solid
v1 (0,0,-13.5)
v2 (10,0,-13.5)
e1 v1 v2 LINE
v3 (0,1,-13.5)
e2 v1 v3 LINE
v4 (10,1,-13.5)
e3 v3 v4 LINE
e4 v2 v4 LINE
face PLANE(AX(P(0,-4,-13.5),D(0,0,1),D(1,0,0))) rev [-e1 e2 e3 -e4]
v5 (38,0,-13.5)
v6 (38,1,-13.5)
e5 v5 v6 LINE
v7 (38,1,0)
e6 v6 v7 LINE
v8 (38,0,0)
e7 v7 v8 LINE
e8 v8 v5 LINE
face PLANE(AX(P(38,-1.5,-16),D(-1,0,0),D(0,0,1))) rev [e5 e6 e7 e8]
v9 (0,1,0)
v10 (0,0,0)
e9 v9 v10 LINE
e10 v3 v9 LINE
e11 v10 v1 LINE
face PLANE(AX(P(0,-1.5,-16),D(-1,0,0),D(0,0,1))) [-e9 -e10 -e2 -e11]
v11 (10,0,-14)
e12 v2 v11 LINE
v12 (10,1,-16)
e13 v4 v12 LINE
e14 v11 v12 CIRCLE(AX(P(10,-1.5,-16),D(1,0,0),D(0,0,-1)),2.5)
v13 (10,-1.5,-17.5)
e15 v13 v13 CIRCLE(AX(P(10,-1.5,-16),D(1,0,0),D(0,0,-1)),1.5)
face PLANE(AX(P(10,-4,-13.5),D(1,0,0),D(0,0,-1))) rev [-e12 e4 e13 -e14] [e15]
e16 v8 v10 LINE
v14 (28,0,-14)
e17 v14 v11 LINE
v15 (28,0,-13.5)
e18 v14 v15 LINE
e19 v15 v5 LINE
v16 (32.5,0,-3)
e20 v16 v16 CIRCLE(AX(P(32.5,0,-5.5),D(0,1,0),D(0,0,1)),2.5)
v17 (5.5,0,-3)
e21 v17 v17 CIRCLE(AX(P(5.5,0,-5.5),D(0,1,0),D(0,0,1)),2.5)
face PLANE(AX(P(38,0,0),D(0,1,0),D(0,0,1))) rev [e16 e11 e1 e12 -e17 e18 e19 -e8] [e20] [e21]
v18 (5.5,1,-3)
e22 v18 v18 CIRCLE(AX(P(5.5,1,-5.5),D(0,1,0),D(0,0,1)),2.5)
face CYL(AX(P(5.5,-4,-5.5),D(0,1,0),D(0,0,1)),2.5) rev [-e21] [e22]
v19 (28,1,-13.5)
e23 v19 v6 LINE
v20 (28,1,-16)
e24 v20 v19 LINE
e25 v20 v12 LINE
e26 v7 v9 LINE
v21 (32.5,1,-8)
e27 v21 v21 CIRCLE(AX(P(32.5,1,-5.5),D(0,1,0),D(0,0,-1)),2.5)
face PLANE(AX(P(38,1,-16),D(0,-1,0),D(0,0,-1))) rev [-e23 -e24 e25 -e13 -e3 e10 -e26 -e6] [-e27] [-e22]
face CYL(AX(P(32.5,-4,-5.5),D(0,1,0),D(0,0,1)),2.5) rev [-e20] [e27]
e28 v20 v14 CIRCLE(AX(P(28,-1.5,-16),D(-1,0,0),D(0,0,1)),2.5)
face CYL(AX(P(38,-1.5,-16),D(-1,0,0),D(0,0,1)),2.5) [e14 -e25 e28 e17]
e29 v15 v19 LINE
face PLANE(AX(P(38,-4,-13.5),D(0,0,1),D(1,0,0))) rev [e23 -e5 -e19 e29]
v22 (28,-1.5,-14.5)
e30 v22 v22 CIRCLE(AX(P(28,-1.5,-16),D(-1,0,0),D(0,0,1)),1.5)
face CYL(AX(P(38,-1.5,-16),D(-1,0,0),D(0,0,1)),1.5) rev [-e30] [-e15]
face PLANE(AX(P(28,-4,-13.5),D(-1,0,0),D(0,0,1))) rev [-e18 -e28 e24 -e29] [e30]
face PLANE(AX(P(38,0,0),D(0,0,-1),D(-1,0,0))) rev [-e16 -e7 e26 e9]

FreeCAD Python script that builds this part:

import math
import FreeCAD as App
import Part
import Sketcher

V = App.Vector
Q = App.Units.Quantity

doc = App.newDocument("Part")
params = doc.addObject("Spreadsheet::Sheet", "Params")
for row, (alias, value) in enumerate([
    ("sketch1_diameter", "3 mm"),
    ("sketch1_radius", "2.5 mm"),
    ("sketch1_width", "1 mm"),
    ("sketch1_height", "16 mm"),
    ("pad1_length", "38 mm"),
    ("sketch2_width", "10 mm"),
    ("sketch2_height", "5 mm"),
    ("sketch3_diameter", "5 mm"),
], start=1):
    params.set(f"A{row}", alias)
    params.set(f"B{row}", "=" + value)
    params.setAlias(f"B{row}", alias)

body = doc.addObject("PartDesign::Body", "Body")

# Sketch on YZ plane
sketch1 = body.newObject("Sketcher::SketchObject", "Sketch")
sketch1.AttachmentSupport = (doc.getObject("YZ_Plane"), [""])
sketch1.MapMode = "FlatFace"
sketch1.addGeometry(Part.LineSegment(V(1, -16, 0), V(1, 0, 0)), False)
sketch1.addGeometry(Part.LineSegment(V(1, 0, 0), V(0, 0, 0)), False)
sketch1.addGeometry(Part.LineSegment(V(0, 0, 0), V(0, -14, 0)), False)
sketch1.addGeometry(Part.ArcOfCircle(Part.Circle(V(-1.5, -16, 0), V(0, 0, 1), 2.5), math.radians(53), math.radians(360)), False)
sketch1.addGeometry(Part.Circle(V(-1.5, -16, 0), V(0, 0, 1), 1.5), False)
sketch1.addConstraint(Sketcher.Constraint("Coincident", 0, 2, 1, 1))
sketch1.addConstraint(Sketcher.Constraint("Coincident", 1, 2, 2, 1))
sketch1.addConstraint(Sketcher.Constraint("Coincident", 2, 2, 3, 1))
sketch1.addConstraint(Sketcher.Constraint("Tangent", 3, 2, 0, 1))
sketch1.addConstraint(Sketcher.Constraint("Vertical", 0))
sketch1.addConstraint(Sketcher.Constraint("Horizontal", 1))
sketch1.addConstraint(Sketcher.Constraint("Vertical", 2))
sketch1.addConstraint(Sketcher.Constraint("Coincident", 1, 2, -1, 1))
sketch1.addConstraint(Sketcher.Constraint("Coincident", 4, 3, 3, 3))
sketch1.addConstraint(Sketcher.Constraint("Diameter", 4, Q("3 mm")))
sketch1.addConstraint(Sketcher.Constraint("Radius", 3, Q("2.5 mm")))
sketch1.addConstraint(Sketcher.Constraint("DistanceX", 1, 2, 1, 1, Q("1 mm")))
sketch1.addConstraint(Sketcher.Constraint("DistanceY", 0, 1, 0, 2, Q("16 mm")))
sketch1.setExpression("Constraints[9]", "Params.sketch1_diameter")
sketch1.setExpression("Constraints[10]", "Params.sketch1_radius")
sketch1.setExpression("Constraints[11]", "Params.sketch1_width")
sketch1.setExpression("Constraints[12]", "Params.sketch1_height")
pad1 = body.newObject("PartDesign::Pad", "Pad")
pad1.Profile = sketch1
pad1.setExpression("Length", "Params.pad1_length")

# Sketch on XZ plane
sketch2 = body.newObject("Sketcher::SketchObject", "Sketch001")
sketch2.AttachmentSupport = (doc.getObject("XZ_Plane"), [""])
sketch2.MapMode = "FlatFace"
sketch2.AttachmentOffset = App.Placement(V(0, 0, -1), App.Rotation())
sketch2.addGeometry(Part.LineSegment(V(28, -18, 0), V(28, -14, 0)), False)
sketch2.addGeometry(Part.LineSegment(V(28, -14, 0), V(38, -14, 0)), False)
sketch2.addGeometry(Part.LineSegment(V(38, -14, 0), V(38, -18, 0)), False)
sketch2.addGeometry(Part.LineSegment(V(38, -18, 0), V(28, -18, 0)), False)
sketch2.addGeometry(Part.LineSegment(V(0, -18, 0), V(0, -14, 0)), False)
sketch2.addGeometry(Part.LineSegment(V(0, -14, 0), V(10, -14, 0)), False)
sketch2.addGeometry(Part.LineSegment(V(10, -14, 0), V(10, -18, 0)), False)
sketch2.addGeometry(Part.LineSegment(V(10, -18, 0), V(0, -18, 0)), False)
sketch2.addConstraint(Sketcher.Constraint("Coincident", 0, 2, 1, 1))
sketch2.addConstraint(Sketcher.Constraint("Coincident", 1, 2, 2, 1))
sketch2.addConstraint(Sketcher.Constraint("Coincident", 2, 2, 3, 1))
sketch2.addConstraint(Sketcher.Constraint("Coincident", 3, 2, 0, 1))
sketch2.addConstraint(Sketcher.Constraint("Coincident", 4, 2, 5, 1))
sketch2.addConstraint(Sketcher.Constraint("Coincident", 5, 2, 6, 1))
sketch2.addConstraint(Sketcher.Constraint("Coincident", 6, 2, 7, 1))
sketch2.addConstraint(Sketcher.Constraint("Coincident", 7, 2, 4, 1))
sketch2.addConstraint(Sketcher.Constraint("Vertical", 0))
sketch2.addConstraint(Sketcher.Constraint("Horizontal", 1))
sketch2.addConstraint(Sketcher.Constraint("Vertical", 2))
sketch2.addConstraint(Sketcher.Constraint("Horizontal", 3))
sketch2.addConstraint(Sketcher.Constraint("Vertical", 4))
sketch2.addConstraint(Sketcher.Constraint("Horizontal", 5))
sketch2.addConstraint(Sketcher.Constraint("Vertical", 6))
sketch2.addConstraint(Sketcher.Constraint("Horizontal", 7))
sketch2.addConstraint(Sketcher.Constraint("PointOnObject", 4, 2, -2))
sketch2.addConstraint(Sketcher.Constraint("Horizontal", 1, 2, 4, 2))
sketch2.addConstraint(Sketcher.Constraint("Horizontal", 3, 2, 6, 2))
sketch2.addConstraint(Sketcher.Constraint("Equal", 3, 5))
sketch2.addConstraint(Sketcher.Constraint("DistanceX", 1, 1, 1, 2, Q("10 mm")))
sketch2.addConstraint(Sketcher.Constraint("DistanceY", 0, 1, 0, 2, Q("5 mm")))
sketch2.addConstraint(Sketcher.Constraint("DistanceX", -1, 1, 0, 2, Q("28 mm")))
sketch2.addConstraint(Sketcher.Constraint("DistanceY", 0, 2, -1, 1, Q("13.5 mm")))
sketch2.setExpression("Constraints[20]", "Params.sketch2_width")
sketch2.setExpression("Constraints[21]", "Params.sketch2_height")
pocket1 = body.newObject("PartDesign::Pocket", "Pocket")
pocket1.Profile = sketch2
pocket1.Type = "ThroughAll"
pocket1.Reversed = True

# Sketch on XZ plane
sketch3 = body.newObject("Sketcher::SketchObject", "Sketch002")
sketch3.AttachmentSupport = (doc.getObject("XZ_Plane"), [""])
sketch3.MapMode = "FlatFace"
sketch3.AttachmentOffset = App.Placement(V(0, 0, -1), App.Rotation())
sketch3.addGeometry(Part.Circle(V(5.5, -5.5, 0), V(0, 0, 1), 2.5), False)
sketch3.addGeometry(Part.Circle(V(32.5, -5.5, 0), V(0, 0, 1), 2.5), False)
sketch3.addConstraint(Sketcher.Constraint("Equal", 0, 1))
sketch3.addConstraint(Sketcher.Constraint("Horizontal", 0, 3, 1, 3))
sketch3.addConstraint(Sketcher.Constraint("Diameter", 0, Q("5 mm")))
sketch3.addConstraint(Sketcher.Constraint("DistanceX", 0, 3, 1, 3, Q("27 mm")))
sketch3.addConstraint(Sketcher.Constraint("DistanceX", -1, 1, 0, 3, Q("5.5 mm")))
sketch3.addConstraint(Sketcher.Constraint("DistanceY", 0, 3, -1, 1, Q("5.5 mm")))
sketch3.setExpression("Constraints[2]", "Params.sketch3_diameter")
pocket2 = body.newObject("PartDesign::Pocket", "Pocket001")
pocket2.Profile = sketch3
pocket2.Type = "ThroughAll"
pocket2.Reversed = True

doc.recompute()
